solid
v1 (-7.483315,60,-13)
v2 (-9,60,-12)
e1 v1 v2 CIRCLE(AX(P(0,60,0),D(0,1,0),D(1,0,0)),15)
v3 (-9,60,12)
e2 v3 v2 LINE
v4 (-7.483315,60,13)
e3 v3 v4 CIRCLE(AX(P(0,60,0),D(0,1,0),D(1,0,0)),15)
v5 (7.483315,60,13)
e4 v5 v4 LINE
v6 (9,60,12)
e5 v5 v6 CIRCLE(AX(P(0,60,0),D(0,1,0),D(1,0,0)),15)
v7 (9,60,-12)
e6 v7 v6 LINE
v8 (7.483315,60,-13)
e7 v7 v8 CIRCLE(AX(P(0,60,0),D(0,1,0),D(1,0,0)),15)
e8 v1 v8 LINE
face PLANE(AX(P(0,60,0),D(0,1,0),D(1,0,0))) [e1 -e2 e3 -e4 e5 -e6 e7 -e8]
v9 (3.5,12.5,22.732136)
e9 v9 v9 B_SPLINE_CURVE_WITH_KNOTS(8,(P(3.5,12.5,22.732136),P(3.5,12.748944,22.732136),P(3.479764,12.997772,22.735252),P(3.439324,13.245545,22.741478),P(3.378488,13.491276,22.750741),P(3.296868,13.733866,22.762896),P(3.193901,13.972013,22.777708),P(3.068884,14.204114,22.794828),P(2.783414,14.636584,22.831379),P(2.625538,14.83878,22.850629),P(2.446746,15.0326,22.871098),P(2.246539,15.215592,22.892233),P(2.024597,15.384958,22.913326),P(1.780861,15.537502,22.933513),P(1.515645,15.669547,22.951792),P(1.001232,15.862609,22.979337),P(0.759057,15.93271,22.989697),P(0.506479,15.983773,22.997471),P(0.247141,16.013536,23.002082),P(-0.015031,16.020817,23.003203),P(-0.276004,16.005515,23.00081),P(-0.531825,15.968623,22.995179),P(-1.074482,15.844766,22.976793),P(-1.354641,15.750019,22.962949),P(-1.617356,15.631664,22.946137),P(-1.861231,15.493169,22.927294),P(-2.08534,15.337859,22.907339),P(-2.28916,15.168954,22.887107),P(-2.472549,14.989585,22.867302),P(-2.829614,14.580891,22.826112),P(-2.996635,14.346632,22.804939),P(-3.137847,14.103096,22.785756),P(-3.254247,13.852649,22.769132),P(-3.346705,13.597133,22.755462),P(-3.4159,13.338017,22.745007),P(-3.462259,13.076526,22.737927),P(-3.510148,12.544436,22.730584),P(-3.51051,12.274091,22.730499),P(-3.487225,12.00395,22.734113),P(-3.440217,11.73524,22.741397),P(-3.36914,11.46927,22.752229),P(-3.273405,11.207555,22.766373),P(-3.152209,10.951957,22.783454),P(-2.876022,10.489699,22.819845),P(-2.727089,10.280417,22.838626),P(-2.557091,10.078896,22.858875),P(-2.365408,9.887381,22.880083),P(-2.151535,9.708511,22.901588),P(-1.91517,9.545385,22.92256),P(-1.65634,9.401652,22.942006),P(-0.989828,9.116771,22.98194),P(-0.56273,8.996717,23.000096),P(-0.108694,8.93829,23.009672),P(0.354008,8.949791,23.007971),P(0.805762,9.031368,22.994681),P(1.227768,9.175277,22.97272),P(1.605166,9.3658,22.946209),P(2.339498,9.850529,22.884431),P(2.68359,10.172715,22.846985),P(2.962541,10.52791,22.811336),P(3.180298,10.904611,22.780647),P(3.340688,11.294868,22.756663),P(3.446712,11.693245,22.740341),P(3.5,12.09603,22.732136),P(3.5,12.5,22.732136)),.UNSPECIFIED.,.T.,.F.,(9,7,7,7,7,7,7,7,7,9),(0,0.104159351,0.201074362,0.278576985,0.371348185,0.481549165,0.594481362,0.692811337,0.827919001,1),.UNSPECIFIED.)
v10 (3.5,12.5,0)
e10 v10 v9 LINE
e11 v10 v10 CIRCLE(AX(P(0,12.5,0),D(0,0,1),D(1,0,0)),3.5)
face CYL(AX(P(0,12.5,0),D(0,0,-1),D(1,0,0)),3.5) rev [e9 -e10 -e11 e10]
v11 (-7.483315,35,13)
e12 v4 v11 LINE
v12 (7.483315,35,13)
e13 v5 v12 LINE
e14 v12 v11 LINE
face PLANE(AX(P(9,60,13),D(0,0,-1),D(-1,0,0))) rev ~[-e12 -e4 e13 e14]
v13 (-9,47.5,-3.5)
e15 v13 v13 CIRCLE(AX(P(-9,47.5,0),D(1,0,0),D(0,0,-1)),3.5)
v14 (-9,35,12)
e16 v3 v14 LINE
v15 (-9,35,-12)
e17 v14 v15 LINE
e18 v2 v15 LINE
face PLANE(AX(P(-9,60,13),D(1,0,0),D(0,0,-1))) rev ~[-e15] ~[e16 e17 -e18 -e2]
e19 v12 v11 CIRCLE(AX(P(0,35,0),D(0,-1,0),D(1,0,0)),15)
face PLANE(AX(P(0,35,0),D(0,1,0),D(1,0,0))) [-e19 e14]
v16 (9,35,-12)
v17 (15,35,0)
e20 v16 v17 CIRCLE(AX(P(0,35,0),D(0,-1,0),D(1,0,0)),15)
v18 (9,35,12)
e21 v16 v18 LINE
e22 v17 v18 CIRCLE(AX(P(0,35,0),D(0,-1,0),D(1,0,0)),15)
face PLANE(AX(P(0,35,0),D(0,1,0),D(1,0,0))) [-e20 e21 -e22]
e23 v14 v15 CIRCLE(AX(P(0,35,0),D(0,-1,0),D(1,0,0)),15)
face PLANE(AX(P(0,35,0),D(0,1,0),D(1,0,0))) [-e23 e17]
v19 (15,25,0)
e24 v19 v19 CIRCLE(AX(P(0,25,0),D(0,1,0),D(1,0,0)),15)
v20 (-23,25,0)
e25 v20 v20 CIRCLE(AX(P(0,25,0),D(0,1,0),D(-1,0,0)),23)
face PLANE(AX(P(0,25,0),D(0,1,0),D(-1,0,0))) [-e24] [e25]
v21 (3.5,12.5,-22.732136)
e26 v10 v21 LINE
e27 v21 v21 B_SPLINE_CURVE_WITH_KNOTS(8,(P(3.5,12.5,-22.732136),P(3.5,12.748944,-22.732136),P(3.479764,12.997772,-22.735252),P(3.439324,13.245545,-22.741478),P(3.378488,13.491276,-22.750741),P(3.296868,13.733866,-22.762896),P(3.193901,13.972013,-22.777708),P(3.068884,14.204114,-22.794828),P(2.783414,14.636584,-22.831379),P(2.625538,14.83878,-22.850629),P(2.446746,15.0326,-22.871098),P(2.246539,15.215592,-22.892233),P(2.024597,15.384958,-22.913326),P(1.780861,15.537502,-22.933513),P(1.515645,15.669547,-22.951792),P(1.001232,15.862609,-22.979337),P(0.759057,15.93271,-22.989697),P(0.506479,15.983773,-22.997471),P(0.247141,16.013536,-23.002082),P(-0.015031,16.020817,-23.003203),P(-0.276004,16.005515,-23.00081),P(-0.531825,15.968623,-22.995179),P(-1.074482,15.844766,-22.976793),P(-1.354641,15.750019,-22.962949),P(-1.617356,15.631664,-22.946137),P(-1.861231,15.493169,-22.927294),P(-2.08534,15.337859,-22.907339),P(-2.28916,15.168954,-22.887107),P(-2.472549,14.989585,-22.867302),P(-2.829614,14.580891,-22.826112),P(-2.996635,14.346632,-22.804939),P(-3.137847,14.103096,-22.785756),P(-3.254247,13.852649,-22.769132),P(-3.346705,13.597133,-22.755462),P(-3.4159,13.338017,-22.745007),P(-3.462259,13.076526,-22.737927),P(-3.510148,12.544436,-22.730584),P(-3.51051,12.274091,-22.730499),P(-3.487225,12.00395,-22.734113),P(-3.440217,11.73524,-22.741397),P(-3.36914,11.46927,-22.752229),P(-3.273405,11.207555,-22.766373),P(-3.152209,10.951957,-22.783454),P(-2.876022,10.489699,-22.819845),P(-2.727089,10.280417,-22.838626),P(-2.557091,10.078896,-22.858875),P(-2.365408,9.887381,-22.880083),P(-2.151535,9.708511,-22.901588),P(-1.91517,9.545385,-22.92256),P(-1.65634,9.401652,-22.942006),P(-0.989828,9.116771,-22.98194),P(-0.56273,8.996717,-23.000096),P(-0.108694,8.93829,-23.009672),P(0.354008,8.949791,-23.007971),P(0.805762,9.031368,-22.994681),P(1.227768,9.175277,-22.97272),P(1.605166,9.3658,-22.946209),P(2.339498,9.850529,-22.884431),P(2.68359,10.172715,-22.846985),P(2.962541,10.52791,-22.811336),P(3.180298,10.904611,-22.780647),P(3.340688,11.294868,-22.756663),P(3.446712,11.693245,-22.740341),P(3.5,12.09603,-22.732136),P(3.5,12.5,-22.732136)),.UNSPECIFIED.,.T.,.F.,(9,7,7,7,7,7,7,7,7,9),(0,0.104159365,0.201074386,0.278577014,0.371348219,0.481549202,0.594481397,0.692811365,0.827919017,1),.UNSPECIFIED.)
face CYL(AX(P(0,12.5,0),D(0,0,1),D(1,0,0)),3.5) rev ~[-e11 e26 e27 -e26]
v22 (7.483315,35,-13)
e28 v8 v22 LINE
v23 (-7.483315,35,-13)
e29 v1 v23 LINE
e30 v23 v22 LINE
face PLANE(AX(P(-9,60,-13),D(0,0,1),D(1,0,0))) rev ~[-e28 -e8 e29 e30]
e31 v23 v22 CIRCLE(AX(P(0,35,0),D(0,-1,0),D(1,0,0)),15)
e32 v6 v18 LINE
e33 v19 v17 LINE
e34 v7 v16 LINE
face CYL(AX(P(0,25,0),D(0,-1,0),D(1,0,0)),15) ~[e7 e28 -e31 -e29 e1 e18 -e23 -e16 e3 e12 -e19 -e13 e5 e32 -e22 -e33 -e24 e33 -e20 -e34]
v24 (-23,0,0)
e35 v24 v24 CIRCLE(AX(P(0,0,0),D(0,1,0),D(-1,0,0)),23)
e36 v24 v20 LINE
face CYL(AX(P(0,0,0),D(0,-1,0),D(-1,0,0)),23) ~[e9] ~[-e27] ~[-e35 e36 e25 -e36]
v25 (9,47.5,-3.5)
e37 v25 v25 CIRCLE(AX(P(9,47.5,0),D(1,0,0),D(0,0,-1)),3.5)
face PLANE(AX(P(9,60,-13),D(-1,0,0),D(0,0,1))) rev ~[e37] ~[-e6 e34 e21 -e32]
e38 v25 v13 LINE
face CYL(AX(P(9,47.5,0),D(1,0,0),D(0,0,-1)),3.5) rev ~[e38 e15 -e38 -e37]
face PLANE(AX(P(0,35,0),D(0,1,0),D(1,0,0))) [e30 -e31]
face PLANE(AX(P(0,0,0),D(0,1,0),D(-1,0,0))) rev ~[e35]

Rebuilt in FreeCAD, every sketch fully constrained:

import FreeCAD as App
import Part
import Sketcher

V = App.Vector
Q = App.Units.Quantity


def add_polygon(sketch, points):
    """Adds a closed chain of lines whose ends are joined by coincident constraints."""
    first, n = sketch.GeometryCount, len(points)
    for a, b in zip(points, points[1:] + points[:1]):
        sketch.addGeometry(Part.LineSegment(App.Vector(*a, 0), App.Vector(*b, 0)), False)
    for i in range(n):
        sketch.addConstraint(Sketcher.Constraint("Coincident", first + i, 2, first + (i + 1) % n, 1))

doc = App.newDocument("Part")
body = doc.addObject("PartDesign::Body", "Body")

# Sketch on XZ plane
sketch1 = doc.addObject("Sketcher::SketchObject", "Sketch")
body.addObject(sketch1)
sketch1.AttachmentSupport = (doc.XZ_Plane, [""])
sketch1.MapMode = "FlatFace"
sketch1.addGeometry(Part.Circle(V(0, 0, 0), V(0, 0, 1), 23), False)
sketch1.addConstraint([
    Sketcher.Constraint("Coincident", 0, 3, -1, 1),
    Sketcher.Constraint("Diameter", 0, Q("46 mm")),
])
pad1 = doc.addObject("PartDesign::Pad", "Pad")
body.addObject(pad1)
pad1.Profile = sketch1
pad1.Length = 25
pad1.Reversed = True

# Sketch on XZ plane
sketch2 = doc.addObject("Sketcher::SketchObject", "Sketch001")
body.addObject(sketch2)
sketch2.AttachmentSupport = (doc.XZ_Plane, [""])
sketch2.MapMode = "FlatFace"
sketch2.AttachmentOffset = App.Placement(V(0, 0, -25), App.Rotation())
sketch2.addGeometry(Part.Circle(V(0, 0, 0), V(0, 0, 1), 15), False)
sketch2.addConstraint([
    Sketcher.Constraint("Coincident", 0, 3, -1, 1),
    Sketcher.Constraint("Diameter", 0, Q("30 mm")),
])
pad2 = doc.addObject("PartDesign::Pad", "Pad001")
body.addObject(pad2)
pad2.Profile = sketch2
pad2.Length = 35
pad2.Reversed = True

# Sketch on XZ plane
sketch3 = doc.addObject("Sketcher::SketchObject", "Sketch002")
body.addObject(sketch3)
sketch3.AttachmentSupport = (doc.XZ_Plane, [""])
sketch3.MapMode = "FlatFace"
sketch3.AttachmentOffset = App.Placement(V(0, 0, -60), App.Rotation())
sketch3.addGeometry(Part.Circle(V(0, 0, 0), V(0, 0, 1), 23), False)  # 0
add_polygon(sketch3, [(9, -13), (9, 13), (-9, 13), (-9, -13)])  # lines 1-4
sketch3.addConstraint([
    Sketcher.Constraint("Vertical", 1),
    Sketcher.Constraint("Horizontal", 2),
    Sketcher.Constraint("Vertical", 3),
    Sketcher.Constraint("Horizontal", 4),
    Sketcher.Constraint("Coincident", 0, 3, -1, 1),
    Sketcher.Constraint("Symmetric", 1, 2, 3, 2, -1, 1),
    Sketcher.Constraint("DistanceX", 2, 2, 2, 1, Q("18 mm")),
    Sketcher.Constraint("DistanceY", 1, 1, 1, 2, Q("26 mm")),
    Sketcher.Constraint("Diameter", 0, Q("46 mm")),
])
pocket1 = doc.addObject("PartDesign::Pocket", "Pocket")
body.addObject(pocket1)
pocket1.Profile = sketch3
pocket1.Length = 25
pocket1.Reversed = True

# Sketch on YZ plane
sketch4 = doc.addObject("Sketcher::SketchObject", "Sketch003")
body.addObject(sketch4)
sketch4.AttachmentSupport = (doc.YZ_Plane, [""])
sketch4.MapMode = "FlatFace"
sketch4.AttachmentOffset = App.Placement(V(0, 0, 9), App.Rotation())
sketch4.addGeometry(Part.Circle(V(47.5, 0, 0), V(0, 0, 1), 3.5), False)
sketch4.addConstraint([
    Sketcher.Constraint("PointOnObject", 0, 3, -1),
    Sketcher.Constraint("Diameter", 0, Q("7 mm")),
    Sketcher.Constraint("DistanceX", -1, 1, 0, 3, Q("47.5 mm")),
])
pocket2 = doc.addObject("PartDesign::Pocket", "Pocket001")
body.addObject(pocket2)
pocket2.Profile = sketch4
pocket2.Type = "ThroughAll"
pocket2.Midplane = True

# Sketch on XY plane
sketch5 = doc.addObject("Sketcher::SketchObject", "Sketch004")
body.addObject(sketch5)
sketch5.AttachmentSupport = (doc.XY_Plane, [""])
sketch5.MapMode = "FlatFace"
sketch5.addGeometry(Part.Circle(V(0, 12.5, 0), V(0, 0, 1), 3.5), False)
sketch5.addConstraint([
    Sketcher.Constraint("PointOnObject", 0, 3, -2),
    Sketcher.Constraint("Diameter", 0, Q("7 mm")),
    Sketcher.Constraint("DistanceY", -1, 1, 0, 3, Q("12.5 mm")),
])
pocket3 = doc.addObject("PartDesign::Pocket", "Pocket002")
body.addObject(pocket3)
pocket3.Profile = sketch5
pocket3.Type = "ThroughAll"
pocket3.Midplane = True

doc.recompute()
